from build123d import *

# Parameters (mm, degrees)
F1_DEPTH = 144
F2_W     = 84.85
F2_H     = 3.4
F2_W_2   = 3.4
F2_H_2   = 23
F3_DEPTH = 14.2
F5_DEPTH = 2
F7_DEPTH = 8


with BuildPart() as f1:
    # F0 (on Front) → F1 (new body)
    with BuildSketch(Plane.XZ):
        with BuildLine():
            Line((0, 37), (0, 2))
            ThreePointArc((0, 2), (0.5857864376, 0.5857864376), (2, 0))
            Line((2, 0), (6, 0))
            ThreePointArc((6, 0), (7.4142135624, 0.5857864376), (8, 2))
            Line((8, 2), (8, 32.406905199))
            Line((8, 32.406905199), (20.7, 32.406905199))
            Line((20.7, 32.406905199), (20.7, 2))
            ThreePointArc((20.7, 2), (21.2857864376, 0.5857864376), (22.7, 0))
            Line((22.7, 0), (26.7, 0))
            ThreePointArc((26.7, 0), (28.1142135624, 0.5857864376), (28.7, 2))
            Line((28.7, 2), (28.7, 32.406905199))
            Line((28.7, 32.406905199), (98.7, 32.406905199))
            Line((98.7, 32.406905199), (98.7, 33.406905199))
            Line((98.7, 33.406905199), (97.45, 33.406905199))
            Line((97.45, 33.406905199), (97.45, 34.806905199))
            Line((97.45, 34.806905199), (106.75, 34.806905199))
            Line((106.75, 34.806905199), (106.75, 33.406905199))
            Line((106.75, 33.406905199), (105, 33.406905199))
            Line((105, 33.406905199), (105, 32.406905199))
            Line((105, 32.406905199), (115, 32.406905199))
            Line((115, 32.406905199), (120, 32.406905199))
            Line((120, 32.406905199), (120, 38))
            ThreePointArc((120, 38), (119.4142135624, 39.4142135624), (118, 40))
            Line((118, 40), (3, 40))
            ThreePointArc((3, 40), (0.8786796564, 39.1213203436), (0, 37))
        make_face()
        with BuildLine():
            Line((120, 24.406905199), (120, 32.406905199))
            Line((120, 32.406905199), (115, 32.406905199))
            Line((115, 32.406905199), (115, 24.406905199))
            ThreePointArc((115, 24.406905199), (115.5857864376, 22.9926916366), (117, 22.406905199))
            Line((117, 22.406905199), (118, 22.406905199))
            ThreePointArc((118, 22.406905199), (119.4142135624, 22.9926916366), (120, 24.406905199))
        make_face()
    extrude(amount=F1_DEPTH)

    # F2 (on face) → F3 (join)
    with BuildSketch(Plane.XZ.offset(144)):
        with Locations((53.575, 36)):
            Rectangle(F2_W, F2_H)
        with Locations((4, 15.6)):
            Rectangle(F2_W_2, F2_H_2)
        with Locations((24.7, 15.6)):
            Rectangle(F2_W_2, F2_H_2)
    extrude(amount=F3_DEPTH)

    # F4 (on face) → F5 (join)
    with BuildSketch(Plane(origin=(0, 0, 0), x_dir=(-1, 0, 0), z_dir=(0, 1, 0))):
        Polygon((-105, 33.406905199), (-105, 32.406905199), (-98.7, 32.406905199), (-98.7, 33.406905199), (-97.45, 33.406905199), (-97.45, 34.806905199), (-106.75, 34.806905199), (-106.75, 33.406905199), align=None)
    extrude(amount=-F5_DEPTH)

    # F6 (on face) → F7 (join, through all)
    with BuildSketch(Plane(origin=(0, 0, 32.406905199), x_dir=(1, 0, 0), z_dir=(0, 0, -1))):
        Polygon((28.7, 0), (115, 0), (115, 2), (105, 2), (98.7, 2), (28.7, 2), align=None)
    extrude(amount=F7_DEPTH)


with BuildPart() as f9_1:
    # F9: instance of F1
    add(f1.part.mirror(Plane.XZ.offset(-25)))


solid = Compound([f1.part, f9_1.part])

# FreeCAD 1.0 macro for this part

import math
import FreeCAD as App
import Part
import Sketcher
from FreeCAD import Vector


def add_polygon(sketch, points):
    """Adds a closed chain of lines whose ends are joined by coincident constraints."""
    first, n = sketch.GeometryCount, len(points)
    for a, b in zip(points, points[1:] + points[:1]):
        sketch.addGeometry(Part.LineSegment(App.Vector(*a, 0), App.Vector(*b, 0)), False)
    for i in range(n):
        sketch.addConstraint(Sketcher.Constraint("Coincident", first + i, 2, first + (i + 1) % n, 1))

doc = App.newDocument("Part")
params = doc.addObject("Spreadsheet::Sheet", "Params")
for row, (alias, value) in enumerate([
    ("sketch1_radius", "2 mm"),
    ("sketch1_radius2", "3 mm"),
    ("sketch1_width", "4 mm"),
    ("sketch1_width2", "70 mm"),
    ("sketch1_width3", "10 mm"),
    ("pad1_length", "144 mm"),
    ("sketch2_height", "23 mm"),
    ("sketch2_width", "3.4 mm"),
    ("sketch2_width2", "84.85 mm"),
    ("pad2_length", "14.2 mm"),
    ("sketch3_height", "1 mm"),
    ("sketch3_width", "6.3 mm"),
    ("sketch3_width2", "9.3 mm"),
    ("sketch3_height2", "1.4 mm"),
    ("sketch3_width3", "1.25 mm"),
    ("pad3_length", "2 mm"),
    ("sketch4_height", "2 mm"),
    ("sketch4_width", "86.3 mm"),
    ("pad4_length", "8 mm"),
], start=1):
    params.set(f"A{row}", alias)
    params.set(f"B{row}", "=" + value)
    params.setAlias(f"B{row}", alias)

body = doc.addObject("PartDesign::Body", "Body")

# Sketch on XZ plane
sketch1 = body.newObject("Sketcher::SketchObject", "Sketch")
sketch1.AttachmentSupport = (doc.getObject("XZ_Plane"), [""])
sketch1.MapMode = "FlatFace"
sketch1.addGeometry([
    Part.LineSegment(Vector(0, 37, 0), Vector(0, 2, 0)),  # 0
    Part.ArcOfCircle(Part.Circle(Vector(2, 2, 0), Vector(0, 0, 1), 2), math.radians(180), math.radians(270)),  # 1
    Part.LineSegment(Vector(2, 0, 0), Vector(6, 0, 0)),  # 2
    Part.ArcOfCircle(Part.Circle(Vector(6, 2, 0), Vector(0, 0, 1), 2), math.radians(-90), math.radians(0)),  # 3
    Part.LineSegment(Vector(8, 2, 0), Vector(8, 32.4, 0)),  # 4
    Part.LineSegment(Vector(8, 32.4, 0), Vector(20.7, 32.4, 0)),  # 5
    Part.LineSegment(Vector(20.7, 32.4, 0), Vector(20.7, 2, 0)),  # 6
    Part.ArcOfCircle(Part.Circle(Vector(22.7, 2, 0), Vector(0, 0, 1), 2), math.radians(180), math.radians(270)),  # 7
    Part.LineSegment(Vector(22.7, 0, 0), Vector(26.7, 0, 0)),  # 8
    Part.ArcOfCircle(Part.Circle(Vector(26.7, 2, 0), Vector(0, 0, 1), 2), math.radians(-90), math.radians(0)),  # 9
    Part.LineSegment(Vector(28.7, 2, 0), Vector(28.7, 32.4, 0)),  # 10
    Part.LineSegment(Vector(28.7, 32.4, 0), Vector(98.7, 32.4, 0)),  # 11
    Part.LineSegment(Vector(98.7, 32.4, 0), Vector(98.7, 33.4, 0)),  # 12
    Part.LineSegment(Vector(98.7, 33.4, 0), Vector(97.5, 33.4, 0)),  # 13
    Part.LineSegment(Vector(97.5, 33.4, 0), Vector(97.5, 34.8, 0)),  # 14
    Part.LineSegment(Vector(97.5, 34.8, 0), Vector(106.8, 34.8, 0)),  # 15
    Part.LineSegment(Vector(106.8, 34.8, 0), Vector(106.8, 33.4, 0)),  # 16
    Part.LineSegment(Vector(106.8, 33.4, 0), Vector(105, 33.4, 0)),  # 17
    Part.LineSegment(Vector(105, 33.4, 0), Vector(105, 32.4, 0)),  # 18
    Part.LineSegment(Vector(105, 32.4, 0), Vector(115, 32.4, 0)),  # 19
    Part.LineSegment(Vector(115, 32.4, 0), Vector(115, 24.4, 0)),  # 20
    Part.ArcOfCircle(Part.Circle(Vector(117, 24.4, 0), Vector(0, 0, 1), 2), math.radians(180), math.radians(270)),  # 21
    Part.LineSegment(Vector(117, 22.4, 0), Vector(118, 22.4, 0)),  # 22
    Part.ArcOfCircle(Part.Circle(Vector(118, 24.4, 0), Vector(0, 0, 1), 2), math.radians(-90), math.radians(0)),  # 23
    Part.LineSegment(Vector(120, 24.4, 0), Vector(120, 38, 0)),  # 24
    Part.ArcOfCircle(Part.Circle(Vector(118, 38, 0), Vector(0, 0, 1), 2), math.radians(0), math.radians(90)),  # 25
    Part.LineSegment(Vector(118, 40, 0), Vector(3, 40, 0)),  # 26
    Part.ArcOfCircle(Part.Circle(Vector(3, 37, 0), Vector(0, 0, 1), 3), math.radians(90), math.radians(180)),  # 27
], False)
sketch1.addConstraint([
    Sketcher.Constraint("Tangent", 0, 2, 1, 1),
    Sketcher.Constraint("Tangent", 1, 2, 2, 1),
    Sketcher.Constraint("Tangent", 2, 2, 3, 1),
    Sketcher.Constraint("Tangent", 3, 2, 4, 1),
    Sketcher.Constraint("Coincident", 4, 2, 5, 1),
    Sketcher.Constraint("Coincident", 5, 2, 6, 1),
    Sketcher.Constraint("Tangent", 6, 2, 7, 1),
    Sketcher.Constraint("Tangent", 7, 2, 8, 1),
    Sketcher.Constraint("Tangent", 8, 2, 9, 1),
    Sketcher.Constraint("Tangent", 9, 2, 10, 1),
    Sketcher.Constraint("Coincident", 10, 2, 11, 1),
    Sketcher.Constraint("Coincident", 11, 2, 12, 1),
    Sketcher.Constraint("Coincident", 12, 2, 13, 1),
    Sketcher.Constraint("Coincident", 13, 2, 14, 1),
    Sketcher.Constraint("Coincident", 14, 2, 15, 1),
    Sketcher.Constraint("Coincident", 15, 2, 16, 1),
    Sketcher.Constraint("Coincident", 16, 2, 17, 1),
    Sketcher.Constraint("Coincident", 17, 2, 18, 1),
    Sketcher.Constraint("Coincident", 18, 2, 19, 1),
    Sketcher.Constraint("Coincident", 19, 2, 20, 1),
    Sketcher.Constraint("Tangent", 20, 2, 21, 1),
    Sketcher.Constraint("Tangent", 21, 2, 22, 1),
    Sketcher.Constraint("Tangent", 22, 2, 23, 1),
    Sketcher.Constraint("Tangent", 23, 2, 24, 1),
    Sketcher.Constraint("Tangent", 24, 2, 25, 1),
    Sketcher.Constraint("Tangent", 25, 2, 26, 1),
    Sketcher.Constraint("Tangent", 26, 2, 27, 1),
    Sketcher.Constraint("Tangent", 27, 2, 0, 1),
    Sketcher.Constraint("Vertical", 0),
    Sketcher.Constraint("Horizontal", 2),
    Sketcher.Constraint("Vertical", 4),
    Sketcher.Constraint("Horizontal", 5),
    Sketcher.Constraint("Vertical", 6),
    Sketcher.Constraint("Horizontal", 8),
    Sketcher.Constraint("Vertical", 10),
    Sketcher.Constraint("Horizontal", 11),
    Sketcher.Constraint("Vertical", 12),
    Sketcher.Constraint("Horizontal", 13),
    Sketcher.Constraint("Vertical", 14),
    Sketcher.Constraint("Horizontal", 15),
    Sketcher.Constraint("Vertical", 16),
    Sketcher.Constraint("Horizontal", 17),
    Sketcher.Constraint("Vertical", 18),
    Sketcher.Constraint("Horizontal", 19),
    Sketcher.Constraint("Vertical", 20),
    Sketcher.Constraint("Horizontal", 22),
    Sketcher.Constraint("Vertical", 24),
    Sketcher.Constraint("Horizontal", 26),
    Sketcher.Constraint("Equal", 1, 3),
    Sketcher.Constraint("Equal", 3, 7),
    Sketcher.Constraint("Equal", 7, 9),
    Sketcher.Constraint("Equal", 9, 21),
    Sketcher.Constraint("Equal", 21, 23),
    Sketcher.Constraint("Equal", 23, 25),
    Sketcher.Constraint("PointOnObject", 0, 2, -2),
    Sketcher.Constraint("PointOnObject", 1, 2, -1),
    Sketcher.Constraint("PointOnObject", 7, 2, -1),
    Sketcher.Constraint("Horizontal", 5, 2, 10, 2),
    Sketcher.Constraint("Horizontal", 13, 2, 16, 2),
    Sketcher.Constraint("Horizontal", 11, 2, 18, 2),
    Sketcher.Constraint("Equal", 2, 8),
    Sketcher.Constraint("Equal", 22, 12),
    Sketcher.Constraint("Radius", 1, 2.0),
    Sketcher.Constraint("Radius", 27, 3.0),
    Sketcher.Constraint("DistanceX", 2, 1, 2, 2, 4.0),
    Sketcher.Constraint("DistanceX", 11, 1, 11, 2, 70.0),
    Sketcher.Constraint("DistanceX", 19, 1, 19, 2, 10.0),
    Sketcher.Constraint("DistanceX", 22, 1, 22, 2, 1.0),
    Sketcher.Constraint("DistanceX", 26, 2, 26, 1, 115.0),
    Sketcher.Constraint("DistanceY", 0, 2, 0, 1, 35.0),
    Sketcher.Constraint("DistanceY", 20, 2, 20, 1, 8.0),
    Sketcher.Constraint("DistanceX", 5, 1, 5, 2, 12.7),
    Sketcher.Constraint("DistanceX", 15, 1, 15, 2, 9.3),
    Sketcher.Constraint("DistanceY", 14, 1, 14, 2, 1.4),
    Sketcher.Constraint("DistanceX", 13, 2, 13, 1, 1.25),
    Sketcher.Constraint("DistanceY", 4, 1, 4, 2, 30.406905),
])
sketch1.setExpression("Constraints[62]", "Params.sketch1_radius")
sketch1.setExpression("Constraints[63]", "Params.sketch1_radius2")
sketch1.setExpression("Constraints[64]", "Params.sketch1_width")
sketch1.setExpression("Constraints[65]", "Params.sketch1_width2")
sketch1.setExpression("Constraints[66]", "Params.sketch1_width3")
pad1 = body.newObject("PartDesign::Pad", "Pad")
pad1.Profile = sketch1
pad1.setExpression("Length", "Params.pad1_length")

# Sketch on XZ plane
sketch2 = body.newObject("Sketcher::SketchObject", "Sketch001")
sketch2.AttachmentSupport = (doc.getObject("XZ_Plane"), [""])
sketch2.MapMode = "FlatFace"
sketch2.AttachmentOffset = App.Placement(Vector(0, 0, 144), App.Rotation())
add_polygon(sketch2, [(11.2, 37.7), (11.2, 34.3), (96, 34.3), (96, 37.7)])  # lines 0-3
add_polygon(sketch2, [(2.3, 27.1), (2.3, 4.1), (5.7, 4.1), (5.7, 27.1)])  # lines 4-7
add_polygon(sketch2, [(23, 27.1), (23, 4.1), (26.4, 4.1), (26.4, 27.1)])  # lines 8-11
sketch2.addConstraint([
    Sketcher.Constraint("Vertical", 0),
    Sketcher.Constraint("Horizontal", 1),
    Sketcher.Constraint("Vertical", 2),
    Sketcher.Constraint("Horizontal", 3),
    Sketcher.Constraint("Vertical", 4),
    Sketcher.Constraint("Horizontal", 5),
    Sketcher.Constraint("Vertical", 6),
    Sketcher.Constraint("Horizontal", 7),
    Sketcher.Constraint("Vertical", 8),
    Sketcher.Constraint("Horizontal", 9),
    Sketcher.Constraint("Vertical", 10),
    Sketcher.Constraint("Horizontal", 11),
    Sketcher.Constraint("Horizontal", 5, 2, 8, 2),
    Sketcher.Constraint("Horizontal", 7, 2, 10, 2),
    Sketcher.Constraint("Equal", 7, 9),
    Sketcher.Constraint("Equal", 11, 0),
    Sketcher.Constraint("DistanceY", 4, 2, 4, 1, 23.0),
    Sketcher.Constraint("DistanceX", 5, 1, 5, 2, 3.4),
    Sketcher.Constraint("DistanceX", -1, 1, 1, 2, 96.0),
    Sketcher.Constraint("DistanceX", -1, 1, 8, 2, 23.0),
    Sketcher.Constraint("DistanceX", 1, 1, 1, 2, 84.85),
    Sketcher.Constraint("DistanceY", -1, 1, 0, 2, 34.3),
    Sketcher.Constraint("DistanceX", -1, 1, 4, 2, 2.3),
    Sketcher.Constraint("DistanceY", -1, 1, 4, 2, 4.1),
])
sketch2.setExpression("Constraints[28]", "Params.sketch2_height")
sketch2.setExpression("Constraints[29]", "Params.sketch2_width")
sketch2.setExpression("Constraints[32]", "Params.sketch2_width2")
pad2 = body.newObject("PartDesign::Pad", "Pad001")
pad2.Profile = sketch2
pad2.setExpression("Length", "Params.pad2_length")

# Sketch on XZ plane
sketch3 = body.newObject("Sketcher::SketchObject", "Sketch002")
sketch3.AttachmentSupport = (doc.getObject("XZ_Plane"), [""])
sketch3.MapMode = "FlatFace"
add_polygon(sketch3, [(105, 33.4), (105, 32.4), (98.7, 32.4), (98.7, 33.4), (97.5, 33.4), (97.5, 34.8), (106.8, 34.8), (106.8, 33.4)])  # lines 0-7
sketch3.addConstraint([
    Sketcher.Constraint("Vertical", 0),
    Sketcher.Constraint("Horizontal", 1),
    Sketcher.Constraint("Vertical", 2),
    Sketcher.Constraint("Horizontal", 3),
    Sketcher.Constraint("Vertical", 4),
    Sketcher.Constraint("Horizontal", 5),
    Sketcher.Constraint("Vertical", 6),
    Sketcher.Constraint("Horizontal", 7),
    Sketcher.Constraint("Horizontal", 3, 2, 6, 2),
    Sketcher.Constraint("DistanceY", 0, 2, 0, 1, 1.0),
    Sketcher.Constraint("DistanceX", 1, 2, 1, 1, 6.3),
    Sketcher.Constraint("DistanceX", 5, 1, 5, 2, 9.3),
    Sketcher.Constraint("DistanceY", 4, 1, 4, 2, 1.4),
    Sketcher.Constraint("DistanceX", -1, 1, 0, 2, 105.0),
    Sketcher.Constraint("DistanceX", 3, 2, 3, 1, 1.25),
    Sketcher.Constraint("DistanceY", -1, 1, 0, 2, 32.406905),
])
sketch3.setExpression("Constraints[17]", "Params.sketch3_height")
sketch3.setExpression("Constraints[18]", "Params.sketch3_width")
sketch3.setExpression("Constraints[19]", "Params.sketch3_width2")
sketch3.setExpression("Constraints[20]", "Params.sketch3_height2")
sketch3.setExpression("Constraints[22]", "Params.sketch3_width3")
pad3 = body.newObject("PartDesign::Pad", "Pad002")
pad3.Profile = sketch3
pad3.setExpression("Length", "Params.pad3_length")

# Sketch on XY plane
sketch4 = body.newObject("Sketcher::SketchObject", "Sketch003")
sketch4.AttachmentSupport = (doc.getObject("XY_Plane"), [""])
sketch4.MapMode = "FlatFace"
sketch4.AttachmentOffset = App.Placement(Vector(0, 0, 32.406905), App.Rotation())
add_polygon(sketch4, [(28.7, 0), (115, 0), (115, -2), (28.7, -2)])  # lines 0-3
sketch4.addConstraint([
    Sketcher.Constraint("Horizontal", 0),
    Sketcher.Constraint("Vertical", 1),
    Sketcher.Constraint("Horizontal", 2),
    Sketcher.Constraint("Vertical", 3),
    Sketcher.Constraint("PointOnObject", 0, 2, -1),
    Sketcher.Constraint("DistanceY", 1, 2, 1, 1, 2.0),
    Sketcher.Constraint("DistanceX", 0, 1, 0, 2, 86.3),
    Sketcher.Constraint("DistanceX", -1, 1, 0, 2, 115.0),
])
sketch4.setExpression("Constraints[9]", "Params.sketch4_height")
sketch4.setExpression("Constraints[10]", "Params.sketch4_width")
pad4 = body.newObject("PartDesign::Pad", "Pad003")
pad4.Profile = sketch4
pad4.setExpression("Length", "Params.pad4_length")
pad4.Reversed = True
body2 = doc.addObject("PartDesign::Body", "Body001")
doc.recompute()

mirroring = doc.addObject("Part::Mirroring", "Mirroring")
mirroring.Source = body
mirroring.Base = Vector(0, 25, 0)
mirroring.Normal = Vector(0, -1, 0)
body2.BaseFeature = mirroring
doc.recompute()
mirroring.Visibility = False

doc.recompute()
